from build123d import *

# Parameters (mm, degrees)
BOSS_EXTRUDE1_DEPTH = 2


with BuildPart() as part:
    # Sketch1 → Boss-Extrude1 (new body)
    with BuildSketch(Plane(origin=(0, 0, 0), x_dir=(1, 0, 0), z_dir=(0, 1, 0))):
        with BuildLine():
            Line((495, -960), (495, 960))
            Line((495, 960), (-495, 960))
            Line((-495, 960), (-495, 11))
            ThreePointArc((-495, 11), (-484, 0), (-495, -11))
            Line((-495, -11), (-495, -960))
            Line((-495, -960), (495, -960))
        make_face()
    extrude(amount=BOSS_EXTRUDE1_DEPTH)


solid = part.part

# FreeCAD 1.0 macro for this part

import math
import FreeCAD as App
import Part
import Sketcher

V = App.Vector
Q = App.Units.Quantity

doc = App.newDocument("Part")
body = doc.addObject("PartDesign::Body", "Body")

# Sketch on XZ plane
sketch1 = body.newObject("Sketcher::SketchObject", "Sketch")
sketch1.AttachmentSupport = (doc.getObject("XZ_Plane"), [""])
sketch1.MapMode = "FlatFace"
sketch1.addGeometry(Part.LineSegment(V(495, 960, 0), V(495, -960, 0)), False)
sketch1.addGeometry(Part.LineSegment(V(495, -960, 0), V(-495, -960, 0)), False)
sketch1.addGeometry(Part.LineSegment(V(-495, -960, 0), V(-495, -11, 0)), False)
sketch1.addGeometry(Part.ArcOfCircle(Part.Circle(V(-495, 0, 0), V(0, 0, 1), 11), math.radians(-90), math.radians(90)), False)
sketch1.addGeometry(Part.LineSegment(V(-495, 11, 0), V(-495, 960, 0)), False)
sketch1.addGeometry(Part.LineSegment(V(-495, 960, 0), V(495, 960, 0)), False)
sketch1.addConstraint(Sketcher.Constraint("Coincident", 0, 2, 1, 1))
sketch1.addConstraint(Sketcher.Constraint("Coincident", 1, 2, 2, 1))
sketch1.addConstraint(Sketcher.Constraint("Coincident", 2, 2, 3, 1))
sketch1.addConstraint(Sketcher.Constraint("Coincident", 3, 2, 4, 1))
sketch1.addConstraint(Sketcher.Constraint("Coincident", 4, 2, 5, 1))
sketch1.addConstraint(Sketcher.Constraint("Coincident", 5, 2, 0, 1))
sketch1.addConstraint(Sketcher.Constraint("Vertical", 0))
sketch1.addConstraint(Sketcher.Constraint("Horizontal", 1))
sketch1.addConstraint(Sketcher.Constraint("Vertical", 2))
sketch1.addConstraint(Sketcher.Constraint("Vertical", 4))
sketch1.addConstraint(Sketcher.Constraint("Horizontal", 5))
sketch1.addConstraint(Sketcher.Constraint("Symmetric", 0, 2, 4, 2, -1, 1))
sketch1.addConstraint(Sketcher.Constraint("Symmetric", 2, 2, 3, 2, -1))
sketch1.addConstraint(Sketcher.Constraint("Vertical", 3, 3, 1, 2))
sketch1.addConstraint(Sketcher.Constraint("Radius", 3, Q("11 mm")))
sketch1.addConstraint(Sketcher.Constraint("DistanceX", 1, 2, 1, 1, Q("990 mm")))
sketch1.addConstraint(Sketcher.Constraint("DistanceY", 0, 2, 0, 1, Q("1920 mm")))
pad1 = body.newObject("PartDesign::Pad", "Pad")
pad1.Profile = sketch1
pad1.Length = 2
pad1.Reversed = True

doc.recompute()
